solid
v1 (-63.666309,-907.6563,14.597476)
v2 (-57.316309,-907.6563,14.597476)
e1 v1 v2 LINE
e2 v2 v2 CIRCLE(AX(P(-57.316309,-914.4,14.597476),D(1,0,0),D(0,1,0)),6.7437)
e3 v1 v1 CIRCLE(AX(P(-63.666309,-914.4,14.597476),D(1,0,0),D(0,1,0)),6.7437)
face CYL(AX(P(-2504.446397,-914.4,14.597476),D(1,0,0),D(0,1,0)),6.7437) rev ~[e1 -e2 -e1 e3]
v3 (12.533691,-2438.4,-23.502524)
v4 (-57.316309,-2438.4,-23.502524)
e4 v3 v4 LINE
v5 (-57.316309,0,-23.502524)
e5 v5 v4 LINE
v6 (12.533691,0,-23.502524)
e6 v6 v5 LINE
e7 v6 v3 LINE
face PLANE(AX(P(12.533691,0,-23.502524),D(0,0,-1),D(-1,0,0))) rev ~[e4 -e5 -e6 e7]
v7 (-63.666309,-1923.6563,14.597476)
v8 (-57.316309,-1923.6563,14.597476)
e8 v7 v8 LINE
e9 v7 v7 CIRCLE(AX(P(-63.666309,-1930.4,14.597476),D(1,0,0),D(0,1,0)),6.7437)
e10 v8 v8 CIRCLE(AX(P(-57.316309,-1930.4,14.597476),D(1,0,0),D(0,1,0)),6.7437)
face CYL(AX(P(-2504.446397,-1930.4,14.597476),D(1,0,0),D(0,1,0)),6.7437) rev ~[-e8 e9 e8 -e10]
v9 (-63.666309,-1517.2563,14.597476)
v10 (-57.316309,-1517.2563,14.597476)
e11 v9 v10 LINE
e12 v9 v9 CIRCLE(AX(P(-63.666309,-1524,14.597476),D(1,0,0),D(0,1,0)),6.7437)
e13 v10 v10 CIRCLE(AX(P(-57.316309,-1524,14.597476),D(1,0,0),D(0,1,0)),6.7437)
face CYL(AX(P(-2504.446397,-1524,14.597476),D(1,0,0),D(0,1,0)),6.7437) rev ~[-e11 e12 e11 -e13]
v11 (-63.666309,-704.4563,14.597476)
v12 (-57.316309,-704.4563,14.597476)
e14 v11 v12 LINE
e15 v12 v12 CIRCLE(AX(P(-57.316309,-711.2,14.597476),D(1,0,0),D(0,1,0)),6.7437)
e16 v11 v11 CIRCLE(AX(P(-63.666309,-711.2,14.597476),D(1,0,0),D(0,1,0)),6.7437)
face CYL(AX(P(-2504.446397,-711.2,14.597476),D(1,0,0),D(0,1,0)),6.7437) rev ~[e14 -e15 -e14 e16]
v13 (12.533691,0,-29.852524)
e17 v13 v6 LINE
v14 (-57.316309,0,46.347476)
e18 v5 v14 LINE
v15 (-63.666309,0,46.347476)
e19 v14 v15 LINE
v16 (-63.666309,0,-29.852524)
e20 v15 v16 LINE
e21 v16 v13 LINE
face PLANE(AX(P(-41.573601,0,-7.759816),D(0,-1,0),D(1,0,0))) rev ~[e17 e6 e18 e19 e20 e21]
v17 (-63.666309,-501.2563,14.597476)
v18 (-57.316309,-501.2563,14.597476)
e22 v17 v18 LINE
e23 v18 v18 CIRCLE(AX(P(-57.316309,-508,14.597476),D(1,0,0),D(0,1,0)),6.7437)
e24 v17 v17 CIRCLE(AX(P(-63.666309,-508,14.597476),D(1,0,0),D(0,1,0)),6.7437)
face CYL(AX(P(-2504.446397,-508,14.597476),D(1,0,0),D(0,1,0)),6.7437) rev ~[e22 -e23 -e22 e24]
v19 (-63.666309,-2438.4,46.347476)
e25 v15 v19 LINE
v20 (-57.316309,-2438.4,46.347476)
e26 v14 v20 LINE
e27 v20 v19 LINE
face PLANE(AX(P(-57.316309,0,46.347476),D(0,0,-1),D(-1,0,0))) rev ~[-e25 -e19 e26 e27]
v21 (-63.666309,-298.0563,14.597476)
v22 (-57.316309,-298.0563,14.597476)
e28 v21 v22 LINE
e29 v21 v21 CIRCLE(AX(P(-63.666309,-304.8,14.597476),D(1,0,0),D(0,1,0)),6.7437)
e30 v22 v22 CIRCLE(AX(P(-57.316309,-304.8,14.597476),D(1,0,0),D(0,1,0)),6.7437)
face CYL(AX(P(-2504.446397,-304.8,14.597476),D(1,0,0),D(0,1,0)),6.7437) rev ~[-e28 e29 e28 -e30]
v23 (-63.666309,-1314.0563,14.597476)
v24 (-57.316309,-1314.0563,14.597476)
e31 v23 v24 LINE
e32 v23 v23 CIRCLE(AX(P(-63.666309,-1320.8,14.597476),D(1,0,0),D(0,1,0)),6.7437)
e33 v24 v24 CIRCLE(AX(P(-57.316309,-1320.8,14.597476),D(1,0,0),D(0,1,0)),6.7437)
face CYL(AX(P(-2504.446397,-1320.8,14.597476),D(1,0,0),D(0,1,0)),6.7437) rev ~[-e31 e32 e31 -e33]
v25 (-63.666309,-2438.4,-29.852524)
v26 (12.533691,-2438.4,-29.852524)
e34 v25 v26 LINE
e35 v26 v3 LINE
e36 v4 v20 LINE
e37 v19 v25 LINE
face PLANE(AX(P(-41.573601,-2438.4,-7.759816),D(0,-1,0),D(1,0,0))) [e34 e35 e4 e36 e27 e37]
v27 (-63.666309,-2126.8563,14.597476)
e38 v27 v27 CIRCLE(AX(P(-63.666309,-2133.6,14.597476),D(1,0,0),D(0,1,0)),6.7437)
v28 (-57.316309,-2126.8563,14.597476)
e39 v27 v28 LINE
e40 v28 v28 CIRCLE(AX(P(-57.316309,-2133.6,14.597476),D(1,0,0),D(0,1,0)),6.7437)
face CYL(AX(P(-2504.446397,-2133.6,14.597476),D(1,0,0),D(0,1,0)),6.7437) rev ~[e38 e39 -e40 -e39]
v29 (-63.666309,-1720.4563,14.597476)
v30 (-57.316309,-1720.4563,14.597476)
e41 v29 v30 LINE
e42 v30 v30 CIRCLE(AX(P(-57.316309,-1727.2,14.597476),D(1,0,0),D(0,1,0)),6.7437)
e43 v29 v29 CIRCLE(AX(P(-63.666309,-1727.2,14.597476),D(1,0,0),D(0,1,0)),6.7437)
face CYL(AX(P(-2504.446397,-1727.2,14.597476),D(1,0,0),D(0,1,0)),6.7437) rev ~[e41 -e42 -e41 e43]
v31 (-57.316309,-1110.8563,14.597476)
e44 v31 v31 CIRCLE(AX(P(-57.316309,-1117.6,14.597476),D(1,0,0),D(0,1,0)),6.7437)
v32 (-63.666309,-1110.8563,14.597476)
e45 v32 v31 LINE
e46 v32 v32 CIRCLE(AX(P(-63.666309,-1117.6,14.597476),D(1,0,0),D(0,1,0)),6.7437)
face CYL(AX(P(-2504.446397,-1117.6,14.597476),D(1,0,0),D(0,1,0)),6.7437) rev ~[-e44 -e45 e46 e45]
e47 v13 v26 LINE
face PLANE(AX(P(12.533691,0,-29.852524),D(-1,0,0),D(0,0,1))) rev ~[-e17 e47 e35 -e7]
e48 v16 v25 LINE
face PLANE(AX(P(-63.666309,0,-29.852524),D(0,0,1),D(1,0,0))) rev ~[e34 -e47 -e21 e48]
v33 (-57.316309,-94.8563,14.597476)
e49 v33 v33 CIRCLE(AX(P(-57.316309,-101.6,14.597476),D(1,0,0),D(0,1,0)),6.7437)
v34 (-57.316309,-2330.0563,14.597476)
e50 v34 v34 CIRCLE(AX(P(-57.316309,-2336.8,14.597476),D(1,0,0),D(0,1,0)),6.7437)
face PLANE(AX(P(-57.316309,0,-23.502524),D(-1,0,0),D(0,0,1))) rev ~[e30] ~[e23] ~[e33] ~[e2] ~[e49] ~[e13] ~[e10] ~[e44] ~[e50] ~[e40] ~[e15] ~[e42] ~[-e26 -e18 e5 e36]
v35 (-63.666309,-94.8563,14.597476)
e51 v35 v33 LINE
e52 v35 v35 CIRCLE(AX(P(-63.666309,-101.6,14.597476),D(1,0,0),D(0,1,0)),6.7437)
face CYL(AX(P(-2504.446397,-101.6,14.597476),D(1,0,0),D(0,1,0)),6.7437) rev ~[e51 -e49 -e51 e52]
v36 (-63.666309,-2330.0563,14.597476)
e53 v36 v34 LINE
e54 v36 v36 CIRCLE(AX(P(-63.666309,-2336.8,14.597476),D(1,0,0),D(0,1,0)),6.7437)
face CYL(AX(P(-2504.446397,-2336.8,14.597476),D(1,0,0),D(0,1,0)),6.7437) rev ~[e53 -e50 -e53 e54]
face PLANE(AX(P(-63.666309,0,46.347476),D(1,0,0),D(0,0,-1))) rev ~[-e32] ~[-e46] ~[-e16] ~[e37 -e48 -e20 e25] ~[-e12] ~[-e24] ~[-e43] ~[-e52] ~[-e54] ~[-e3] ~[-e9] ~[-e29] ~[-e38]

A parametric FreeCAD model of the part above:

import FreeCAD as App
import Part
import Sketcher
from FreeCAD import Vector
Q = App.Units.Quantity


def add_polygon(sketch, points):
    """Adds a closed chain of lines whose ends are joined by coincident constraints."""
    first, n = sketch.GeometryCount, len(points)
    for a, b in zip(points, points[1:] + points[:1]):
        sketch.addGeometry(Part.LineSegment(App.Vector(*a, 0), App.Vector(*b, 0)), False)
    for i in range(n):
        sketch.addConstraint(Sketcher.Constraint("Coincident", first + i, 2, first + (i + 1) % n, 1))

doc = App.newDocument("Part")
body = doc.addObject("PartDesign::Body", "Body")

sketch1 = doc.addObject("Sketcher::SketchObject", "Sketch")
body.addObject(sketch1)
sketch1.AttachmentSupport = (doc.XZ_Plane, [""])
sketch1.MapMode = "FlatFace"
add_polygon(sketch1, [(-57, 46), (-64, 46), (-64, -30), (13, -30), (13, -24), (-57, -24)])
sketch1.addConstraint([
    Sketcher.Constraint("Horizontal", 0),
    Sketcher.Constraint("Vertical", 1),
    Sketcher.Constraint("Horizontal", 2),
    Sketcher.Constraint("Vertical", 3),
    Sketcher.Constraint("Horizontal", 4),
    Sketcher.Constraint("Vertical", 5),
    Sketcher.Constraint("Equal", 2, 1),
    Sketcher.Constraint("Equal", 0, 3),
    Sketcher.Constraint("DistanceX", 2, 1, 2, 2, Q("3 in")),
    Sketcher.Constraint("DistanceX", 0, 2, 0, 1, Q("0.25 in")),
    Sketcher.Constraint("DistanceX", 0, 2, -1, 1, Q("63.666309 mm")),
    Sketcher.Constraint("DistanceY", -1, 1, 0, 2, Q("46.347476 mm")),
])
pad1 = doc.addObject("PartDesign::Pad", "Pad")
body.addObject(pad1)
pad1.Profile = sketch1
pad1.Length = Q("96 in")

sketch2 = doc.addObject("Sketcher::SketchObject", "Sketch001")
body.addObject(sketch2)
sketch2.AttachmentSupport = (doc.YZ_Plane, [""])
sketch2.MapMode = "FlatFace"
sketch2.AttachmentOffset = App.Placement(Vector(0, 0, -63.666309), App.Rotation())
sketch2.addGeometry([
    Part.Circle(Vector(-2337, 15, 0), Vector(0, 0, 1), 7),
    Part.Circle(Vector(-2134, 15, 0), Vector(0, 0, 1), 7),
    Part.Circle(Vector(-1930, 15, 0), Vector(0, 0, 1), 7),
    Part.Circle(Vector(-1727, 15, 0), Vector(0, 0, 1), 7),
    Part.Circle(Vector(-1524, 15, 0), Vector(0, 0, 1), 7),
    Part.Circle(Vector(-1321, 15, 0), Vector(0, 0, 1), 7),
    Part.Circle(Vector(-1118, 15, 0), Vector(0, 0, 1), 7),
    Part.Circle(Vector(-914, 15, 0), Vector(0, 0, 1), 7),
    Part.Circle(Vector(-711, 15, 0), Vector(0, 0, 1), 7),
    Part.Circle(Vector(-508, 15, 0), Vector(0, 0, 1), 7),
    Part.Circle(Vector(-305, 15, 0), Vector(0, 0, 1), 7),
    Part.Circle(Vector(-102, 15, 0), Vector(0, 0, 1), 7),
], False)
sketch2.addConstraint([
    Sketcher.Constraint("Equal", 0, 1),
    Sketcher.Constraint("Equal", 1, 2),
    Sketcher.Constraint("Equal", 2, 3),
    Sketcher.Constraint("Equal", 3, 4),
    Sketcher.Constraint("Equal", 4, 5),
    Sketcher.Constraint("Equal", 5, 6),
    Sketcher.Constraint("Equal", 6, 7),
    Sketcher.Constraint("Equal", 7, 8),
    Sketcher.Constraint("Equal", 8, 9),
    Sketcher.Constraint("Equal", 9, 10),
    Sketcher.Constraint("Equal", 10, 11),
    Sketcher.Constraint("Horizontal", 0, 3, 1, 3),
    Sketcher.Constraint("Horizontal", 1, 3, 2, 3),
    Sketcher.Constraint("Horizontal", 2, 3, 3, 3),
    Sketcher.Constraint("Horizontal", 3, 3, 4, 3),
    Sketcher.Constraint("Horizontal", 4, 3, 5, 3),
    Sketcher.Constraint("Horizontal", 5, 3, 6, 3),
    Sketcher.Constraint("Horizontal", 6, 3, 7, 3),
    Sketcher.Constraint("Horizontal", 7, 3, 8, 3),
    Sketcher.Constraint("Horizontal", 8, 3, 9, 3),
    Sketcher.Constraint("Horizontal", 9, 3, 10, 3),
    Sketcher.Constraint("Horizontal", 10, 3, 11, 3),
    Sketcher.Constraint("Diameter", 0, Q("0.531 in")),
    Sketcher.Constraint("DistanceX", 0, 3, -1, 1, Q("92 in")),
    Sketcher.Constraint("DistanceX", 1, 3, -1, 1, Q("84 in")),
    Sketcher.Constraint("DistanceX", 2, 3, -1, 1, Q("76 in")),
    Sketcher.Constraint("DistanceX", 3, 3, -1, 1, Q("68 in")),
    Sketcher.Constraint("DistanceX", 4, 3, -1, 1, Q("60 in")),
    Sketcher.Constraint("DistanceX", 5, 3, -1, 1, Q("52 in")),
    Sketcher.Constraint("DistanceX", 6, 3, -1, 1, Q("44 in")),
    Sketcher.Constraint("DistanceX", 7, 3, -1, 1, Q("36 in")),
    Sketcher.Constraint("DistanceX", 8, 3, -1, 1, Q("28 in")),
    Sketcher.Constraint("DistanceX", 9, 3, -1, 1, Q("20 in")),
    Sketcher.Constraint("DistanceX", 10, 3, -1, 1, Q("12 in")),
    Sketcher.Constraint("DistanceX", 11, 3, -1, 1, Q("4 in")),
    Sketcher.Constraint("DistanceY", -1, 1, 0, 3, Q("14.597476 mm")),
])
doc.recompute()
hole = doc.addObject("PartDesign::Hole", "Hole")
body.addObject(hole)
hole.Profile = sketch2
hole.ThreadType = "None"
hole.Diameter = Q("0.531 in")
hole.DepthType = "ThroughAll"
hole.Reversed = True

doc.recompute()
